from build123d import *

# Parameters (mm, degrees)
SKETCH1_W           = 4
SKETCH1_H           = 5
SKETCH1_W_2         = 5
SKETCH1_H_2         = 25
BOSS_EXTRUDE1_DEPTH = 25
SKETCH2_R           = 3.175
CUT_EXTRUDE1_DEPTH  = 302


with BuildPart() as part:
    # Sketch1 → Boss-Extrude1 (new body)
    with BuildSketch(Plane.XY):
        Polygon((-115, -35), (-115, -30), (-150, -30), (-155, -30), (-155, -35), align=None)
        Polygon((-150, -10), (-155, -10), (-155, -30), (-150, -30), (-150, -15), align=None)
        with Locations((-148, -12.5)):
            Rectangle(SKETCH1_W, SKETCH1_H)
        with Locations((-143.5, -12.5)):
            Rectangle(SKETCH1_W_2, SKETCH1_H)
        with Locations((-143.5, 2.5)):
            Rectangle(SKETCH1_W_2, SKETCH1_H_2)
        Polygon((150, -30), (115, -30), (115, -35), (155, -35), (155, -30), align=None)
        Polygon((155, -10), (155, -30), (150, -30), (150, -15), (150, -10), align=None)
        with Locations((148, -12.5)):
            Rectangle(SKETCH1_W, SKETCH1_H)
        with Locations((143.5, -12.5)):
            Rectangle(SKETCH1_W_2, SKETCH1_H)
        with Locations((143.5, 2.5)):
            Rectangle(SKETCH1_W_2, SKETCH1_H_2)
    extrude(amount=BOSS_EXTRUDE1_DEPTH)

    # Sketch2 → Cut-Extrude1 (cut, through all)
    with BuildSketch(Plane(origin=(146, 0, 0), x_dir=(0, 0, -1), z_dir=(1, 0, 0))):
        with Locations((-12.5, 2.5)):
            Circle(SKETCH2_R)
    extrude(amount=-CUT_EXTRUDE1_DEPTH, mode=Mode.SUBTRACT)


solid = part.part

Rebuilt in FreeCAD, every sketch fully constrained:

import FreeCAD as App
import Part
import Sketcher
from FreeCAD import Vector

doc = App.newDocument("Part")
body = doc.addObject("PartDesign::Body", "Body")
body.AllowCompound = True

sketch1 = doc.addObject("Sketcher::SketchObject", "Sketch")
body.addObject(sketch1)
sketch1.AttachmentSupport = (doc.XY_Plane, [""])
sketch1.MapMode = "FlatFace"
sketch1.addGeometry([
    Part.LineSegment(Vector(-115, -35, 0), Vector(-115, -30, 0)),
    Part.LineSegment(Vector(-115, -30, 0), Vector(-150, -30, 0)),
    Part.LineSegment(Vector(-150, -30, 0), Vector(-150, -15, 0)),
    Part.LineSegment(Vector(-150, -15, 0), Vector(-141, -15, 0)),
    Part.LineSegment(Vector(-141, -15, 0), Vector(-141, 15, 0)),
    Part.LineSegment(Vector(-141, 15, 0), Vector(-146, 15, 0)),
    Part.LineSegment(Vector(-146, 15, 0), Vector(-146, -10, 0)),
    Part.LineSegment(Vector(-146, -10, 0), Vector(-155, -10, 0)),
    Part.LineSegment(Vector(-155, -10, 0), Vector(-155, -35, 0)),
    Part.LineSegment(Vector(-155, -35, 0), Vector(-115, -35, 0)),
    Part.LineSegment(Vector(115, -30, 0), Vector(115, -35, 0)),
    Part.LineSegment(Vector(115, -35, 0), Vector(155, -35, 0)),
    Part.LineSegment(Vector(155, -35, 0), Vector(155, -10, 0)),
    Part.LineSegment(Vector(155, -10, 0), Vector(146, -10, 0)),
    Part.LineSegment(Vector(146, -10, 0), Vector(146, 15, 0)),
    Part.LineSegment(Vector(146, 15, 0), Vector(141, 15, 0)),
    Part.LineSegment(Vector(141, 15, 0), Vector(141, -15, 0)),
    Part.LineSegment(Vector(141, -15, 0), Vector(150, -15, 0)),
    Part.LineSegment(Vector(150, -15, 0), Vector(150, -30, 0)),
    Part.LineSegment(Vector(150, -30, 0), Vector(115, -30, 0)),
], False)
sketch1.addConstraint([
    Sketcher.Constraint("Coincident", 0, 2, 1, 1),
    Sketcher.Constraint("Coincident", 1, 2, 2, 1),
    Sketcher.Constraint("Coincident", 2, 2, 3, 1),
    Sketcher.Constraint("Coincident", 3, 2, 4, 1),
    Sketcher.Constraint("Coincident", 4, 2, 5, 1),
    Sketcher.Constraint("Coincident", 5, 2, 6, 1),
    Sketcher.Constraint("Coincident", 6, 2, 7, 1),
    Sketcher.Constraint("Coincident", 7, 2, 8, 1),
    Sketcher.Constraint("Coincident", 8, 2, 9, 1),
    Sketcher.Constraint("Coincident", 9, 2, 0, 1),
    Sketcher.Constraint("Coincident", 10, 2, 11, 1),
    Sketcher.Constraint("Coincident", 11, 2, 12, 1),
    Sketcher.Constraint("Coincident", 12, 2, 13, 1),
    Sketcher.Constraint("Coincident", 13, 2, 14, 1),
    Sketcher.Constraint("Coincident", 14, 2, 15, 1),
    Sketcher.Constraint("Coincident", 15, 2, 16, 1),
    Sketcher.Constraint("Coincident", 16, 2, 17, 1),
    Sketcher.Constraint("Coincident", 17, 2, 18, 1),
    Sketcher.Constraint("Coincident", 18, 2, 19, 1),
    Sketcher.Constraint("Coincident", 19, 2, 10, 1),
    Sketcher.Constraint("Vertical", 0),
    Sketcher.Constraint("Horizontal", 1),
    Sketcher.Constraint("Vertical", 2),
    Sketcher.Constraint("Horizontal", 3),
    Sketcher.Constraint("Vertical", 4),
    Sketcher.Constraint("Horizontal", 5),
    Sketcher.Constraint("Vertical", 6),
    Sketcher.Constraint("Horizontal", 7),
    Sketcher.Constraint("Vertical", 8),
    Sketcher.Constraint("Horizontal", 9),
    Sketcher.Constraint("Vertical", 10),
    Sketcher.Constraint("Horizontal", 11),
    Sketcher.Constraint("Vertical", 12),
    Sketcher.Constraint("Horizontal", 13),
    Sketcher.Constraint("Vertical", 14),
    Sketcher.Constraint("Horizontal", 15),
    Sketcher.Constraint("Vertical", 16),
    Sketcher.Constraint("Horizontal", 17),
    Sketcher.Constraint("Vertical", 18),
    Sketcher.Constraint("Horizontal", 19),
    Sketcher.Constraint("Symmetric", 3, 2, 15, 2, -1, 1),
    Sketcher.Constraint("Symmetric", 9, 2, 10, 2, -2),
    Sketcher.Constraint("Symmetric", 7, 2, 12, 2, -2),
    Sketcher.Constraint("Symmetric", 5, 2, 14, 2, -2),
    Sketcher.Constraint("Symmetric", 2, 2, 17, 2, -2),
    Sketcher.Constraint("Horizontal", 1, 2, 18, 2),
    Sketcher.Constraint("Equal", 3, 7),
    Sketcher.Constraint("Equal", 15, 0),
    Sketcher.Constraint("Equal", 6, 8),
    Sketcher.Constraint("DistanceX", 1, 2, 1, 1, 35.0),
    Sketcher.Constraint("DistanceX", 3, 1, 3, 2, 9.0),
    Sketcher.Constraint("DistanceX", 5, 2, 5, 1, 5.0),
    Sketcher.Constraint("DistanceY", 2, 1, 2, 2, 15.0),
    Sketcher.Constraint("DistanceY", 4, 1, 4, 2, 30.0),
    Sketcher.Constraint("DistanceX", 0, 2, -1, 1, 115.0),
])
pad1 = doc.addObject("PartDesign::Pad", "Pad")
body.addObject(pad1)
pad1.Profile = sketch1
pad1.Length = 25

sketch2 = doc.addObject("Sketcher::SketchObject", "Sketch001")
body.addObject(sketch2)
sketch2.AttachmentSupport = (doc.YZ_Plane, [""])
sketch2.MapMode = "FlatFace"
sketch2.AttachmentOffset = App.Placement(Vector(0, 0, 146), App.Rotation())
sketch2.addGeometry(Part.Circle(Vector(2.5, 12.5, 0), Vector(0, 0, 1), 3.2), False)
sketch2.addConstraint([
    Sketcher.Constraint("Diameter", 0, 6.35),
    Sketcher.Constraint("DistanceX", -1, 1, 0, 3, 2.5),
    Sketcher.Constraint("DistanceY", -1, 1, 0, 3, 12.5),
])
pocket1 = doc.addObject("PartDesign::Pocket", "Pocket")
body.addObject(pocket1)
pocket1.Profile = sketch2
pocket1.Type = "ThroughAll"

doc.recompute()
